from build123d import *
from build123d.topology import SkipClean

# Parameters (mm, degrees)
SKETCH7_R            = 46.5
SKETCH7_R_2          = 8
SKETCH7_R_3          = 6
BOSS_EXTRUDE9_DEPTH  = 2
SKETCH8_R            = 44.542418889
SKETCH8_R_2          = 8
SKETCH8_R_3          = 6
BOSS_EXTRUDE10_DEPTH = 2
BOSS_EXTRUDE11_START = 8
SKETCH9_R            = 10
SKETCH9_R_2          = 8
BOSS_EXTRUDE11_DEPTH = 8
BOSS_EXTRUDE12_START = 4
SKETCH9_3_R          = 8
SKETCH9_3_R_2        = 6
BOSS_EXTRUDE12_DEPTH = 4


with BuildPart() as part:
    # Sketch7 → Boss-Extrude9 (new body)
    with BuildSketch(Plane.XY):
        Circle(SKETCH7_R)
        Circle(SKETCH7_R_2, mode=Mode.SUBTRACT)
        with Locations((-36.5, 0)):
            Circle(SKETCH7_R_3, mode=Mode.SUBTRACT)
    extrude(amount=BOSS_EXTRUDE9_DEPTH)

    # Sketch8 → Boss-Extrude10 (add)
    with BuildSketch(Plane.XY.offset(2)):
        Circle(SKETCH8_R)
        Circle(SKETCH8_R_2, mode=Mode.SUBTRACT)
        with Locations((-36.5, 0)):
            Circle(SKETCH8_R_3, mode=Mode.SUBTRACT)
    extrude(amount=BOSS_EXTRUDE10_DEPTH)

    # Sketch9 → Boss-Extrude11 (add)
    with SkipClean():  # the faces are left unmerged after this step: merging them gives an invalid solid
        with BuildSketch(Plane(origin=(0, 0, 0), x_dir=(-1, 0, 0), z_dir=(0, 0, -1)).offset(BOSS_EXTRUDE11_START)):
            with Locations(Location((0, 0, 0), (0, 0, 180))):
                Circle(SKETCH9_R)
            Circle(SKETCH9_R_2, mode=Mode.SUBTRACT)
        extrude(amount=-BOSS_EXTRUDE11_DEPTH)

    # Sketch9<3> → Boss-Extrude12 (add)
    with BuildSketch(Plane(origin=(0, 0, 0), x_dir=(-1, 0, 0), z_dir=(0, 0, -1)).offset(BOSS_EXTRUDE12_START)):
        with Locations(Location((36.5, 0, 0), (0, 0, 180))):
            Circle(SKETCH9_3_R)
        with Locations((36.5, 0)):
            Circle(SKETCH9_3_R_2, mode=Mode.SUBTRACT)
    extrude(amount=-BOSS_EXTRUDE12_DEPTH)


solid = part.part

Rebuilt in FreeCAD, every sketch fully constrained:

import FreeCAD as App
import Part
import Sketcher
Q = App.Units.Quantity

doc = App.newDocument("Part")
body = doc.addObject("PartDesign::Body", "Body")

# Sketch on XY plane
sketch1 = body.newObject("Sketcher::SketchObject", "Sketch")
sketch1.AttachmentSupport = (doc.getObject("XY_Plane"), [""])
sketch1.MapMode = "FlatFace"
sketch1.addGeometry(Part.Circle(App.Vector(0, 0, 0), App.Vector(0, 0, 1), 46), False)
sketch1.addGeometry(Part.Circle(App.Vector(-36, 0, 0), App.Vector(0, 0, 1), 6), False)
sketch1.addGeometry(Part.Circle(App.Vector(0, 0, 0), App.Vector(0, 0, 1), 8), False)
sketch1.addConstraint(Sketcher.Constraint("Coincident", 0, 3, -1, 1))
sketch1.addConstraint(Sketcher.Constraint("Coincident", 2, 3, -1, 1))
sketch1.addConstraint(Sketcher.Constraint("PointOnObject", 1, 3, -1))
sketch1.addConstraint(Sketcher.Constraint("Diameter", 0, Q("93 mm")))
sketch1.addConstraint(Sketcher.Constraint("Diameter", 1, Q("12 mm")))
sketch1.addConstraint(Sketcher.Constraint("Diameter", 2, Q("16 mm")))
sketch1.addConstraint(Sketcher.Constraint("DistanceX", 1, 3, -1, 1, Q("36.5 mm")))
pad1 = body.newObject("PartDesign::Pad", "Pad")
pad1.Profile = sketch1
pad1.Length = 2

# Sketch on XY plane
sketch2 = body.newObject("Sketcher::SketchObject", "Sketch001")
sketch2.AttachmentSupport = (doc.getObject("XY_Plane"), [""])
sketch2.MapMode = "FlatFace"
sketch2.AttachmentOffset = App.Placement(App.Vector(0, 0, 2), App.Rotation())
sketch2.addGeometry(Part.Circle(App.Vector(0, 0, 0), App.Vector(0, 0, 1), 45), False)
sketch2.addGeometry(Part.Circle(App.Vector(-36, 0, 0), App.Vector(0, 0, 1), 6), False)
sketch2.addGeometry(Part.Circle(App.Vector(0, 0, 0), App.Vector(0, 0, 1), 8), False)
sketch2.addConstraint(Sketcher.Constraint("Coincident", 0, 3, -1, 1))
sketch2.addConstraint(Sketcher.Constraint("Coincident", 2, 3, -1, 1))
sketch2.addConstraint(Sketcher.Constraint("PointOnObject", 1, 3, -1))
sketch2.addConstraint(Sketcher.Constraint("Diameter", 1, Q("12 mm")))
sketch2.addConstraint(Sketcher.Constraint("Diameter", 2, Q("16 mm")))
sketch2.addConstraint(Sketcher.Constraint("DistanceX", 1, 3, -1, 1, Q("36.5 mm")))
sketch2.addConstraint(Sketcher.Constraint("Diameter", 0, Q("89.084838 mm")))
pad2 = body.newObject("PartDesign::Pad", "Pad001")
pad2.Profile = sketch2
pad2.Length = 2

# Sketch on XY plane
sketch3 = body.newObject("Sketcher::SketchObject", "Sketch002")
sketch3.AttachmentSupport = (doc.getObject("XY_Plane"), [""])
sketch3.MapMode = "FlatFace"
sketch3.AttachmentOffset = App.Placement(App.Vector(0, 0, -8), App.Rotation())
sketch3.addGeometry(Part.Circle(App.Vector(0, 0, 0), App.Vector(0, 0, 1), 10), False)
sketch3.addGeometry(Part.Circle(App.Vector(0, 0, 0), App.Vector(0, 0, 1), 8), False)
sketch3.addConstraint(Sketcher.Constraint("Coincident", 0, 3, -1, 1))
sketch3.addConstraint(Sketcher.Constraint("Coincident", 1, 3, -1, 1))
sketch3.addConstraint(Sketcher.Constraint("Diameter", 0, Q("20 mm")))
sketch3.addConstraint(Sketcher.Constraint("Diameter", 1, Q("16 mm")))
pad3 = body.newObject("PartDesign::Pad", "Pad002")
pad3.Profile = sketch3
pad3.Length = 8

# Sketch on XY plane
sketch4 = body.newObject("Sketcher::SketchObject", "Sketch003")
sketch4.AttachmentSupport = (doc.getObject("XY_Plane"), [""])
sketch4.MapMode = "FlatFace"
sketch4.AttachmentOffset = App.Placement(App.Vector(0, 0, -4), App.Rotation())
sketch4.addGeometry(Part.Circle(App.Vector(-36, 0, 0), App.Vector(0, 0, 1), 8), False)
sketch4.addGeometry(Part.Circle(App.Vector(-36, 0, 0), App.Vector(0, 0, 1), 6), False)
sketch4.addConstraint(Sketcher.Constraint("Coincident", 1, 3, 0, 3))
sketch4.addConstraint(Sketcher.Constraint("PointOnObject", 0, 3, -1))
sketch4.addConstraint(Sketcher.Constraint("Diameter", 0, Q("16 mm")))
sketch4.addConstraint(Sketcher.Constraint("Diameter", 1, Q("12 mm")))
sketch4.addConstraint(Sketcher.Constraint("DistanceX", 0, 3, -1, 1, Q("36.5 mm")))
pad4 = body.newObject("PartDesign::Pad", "Pad003")
pad4.Profile = sketch4
pad4.Length = 4

doc.recompute()
